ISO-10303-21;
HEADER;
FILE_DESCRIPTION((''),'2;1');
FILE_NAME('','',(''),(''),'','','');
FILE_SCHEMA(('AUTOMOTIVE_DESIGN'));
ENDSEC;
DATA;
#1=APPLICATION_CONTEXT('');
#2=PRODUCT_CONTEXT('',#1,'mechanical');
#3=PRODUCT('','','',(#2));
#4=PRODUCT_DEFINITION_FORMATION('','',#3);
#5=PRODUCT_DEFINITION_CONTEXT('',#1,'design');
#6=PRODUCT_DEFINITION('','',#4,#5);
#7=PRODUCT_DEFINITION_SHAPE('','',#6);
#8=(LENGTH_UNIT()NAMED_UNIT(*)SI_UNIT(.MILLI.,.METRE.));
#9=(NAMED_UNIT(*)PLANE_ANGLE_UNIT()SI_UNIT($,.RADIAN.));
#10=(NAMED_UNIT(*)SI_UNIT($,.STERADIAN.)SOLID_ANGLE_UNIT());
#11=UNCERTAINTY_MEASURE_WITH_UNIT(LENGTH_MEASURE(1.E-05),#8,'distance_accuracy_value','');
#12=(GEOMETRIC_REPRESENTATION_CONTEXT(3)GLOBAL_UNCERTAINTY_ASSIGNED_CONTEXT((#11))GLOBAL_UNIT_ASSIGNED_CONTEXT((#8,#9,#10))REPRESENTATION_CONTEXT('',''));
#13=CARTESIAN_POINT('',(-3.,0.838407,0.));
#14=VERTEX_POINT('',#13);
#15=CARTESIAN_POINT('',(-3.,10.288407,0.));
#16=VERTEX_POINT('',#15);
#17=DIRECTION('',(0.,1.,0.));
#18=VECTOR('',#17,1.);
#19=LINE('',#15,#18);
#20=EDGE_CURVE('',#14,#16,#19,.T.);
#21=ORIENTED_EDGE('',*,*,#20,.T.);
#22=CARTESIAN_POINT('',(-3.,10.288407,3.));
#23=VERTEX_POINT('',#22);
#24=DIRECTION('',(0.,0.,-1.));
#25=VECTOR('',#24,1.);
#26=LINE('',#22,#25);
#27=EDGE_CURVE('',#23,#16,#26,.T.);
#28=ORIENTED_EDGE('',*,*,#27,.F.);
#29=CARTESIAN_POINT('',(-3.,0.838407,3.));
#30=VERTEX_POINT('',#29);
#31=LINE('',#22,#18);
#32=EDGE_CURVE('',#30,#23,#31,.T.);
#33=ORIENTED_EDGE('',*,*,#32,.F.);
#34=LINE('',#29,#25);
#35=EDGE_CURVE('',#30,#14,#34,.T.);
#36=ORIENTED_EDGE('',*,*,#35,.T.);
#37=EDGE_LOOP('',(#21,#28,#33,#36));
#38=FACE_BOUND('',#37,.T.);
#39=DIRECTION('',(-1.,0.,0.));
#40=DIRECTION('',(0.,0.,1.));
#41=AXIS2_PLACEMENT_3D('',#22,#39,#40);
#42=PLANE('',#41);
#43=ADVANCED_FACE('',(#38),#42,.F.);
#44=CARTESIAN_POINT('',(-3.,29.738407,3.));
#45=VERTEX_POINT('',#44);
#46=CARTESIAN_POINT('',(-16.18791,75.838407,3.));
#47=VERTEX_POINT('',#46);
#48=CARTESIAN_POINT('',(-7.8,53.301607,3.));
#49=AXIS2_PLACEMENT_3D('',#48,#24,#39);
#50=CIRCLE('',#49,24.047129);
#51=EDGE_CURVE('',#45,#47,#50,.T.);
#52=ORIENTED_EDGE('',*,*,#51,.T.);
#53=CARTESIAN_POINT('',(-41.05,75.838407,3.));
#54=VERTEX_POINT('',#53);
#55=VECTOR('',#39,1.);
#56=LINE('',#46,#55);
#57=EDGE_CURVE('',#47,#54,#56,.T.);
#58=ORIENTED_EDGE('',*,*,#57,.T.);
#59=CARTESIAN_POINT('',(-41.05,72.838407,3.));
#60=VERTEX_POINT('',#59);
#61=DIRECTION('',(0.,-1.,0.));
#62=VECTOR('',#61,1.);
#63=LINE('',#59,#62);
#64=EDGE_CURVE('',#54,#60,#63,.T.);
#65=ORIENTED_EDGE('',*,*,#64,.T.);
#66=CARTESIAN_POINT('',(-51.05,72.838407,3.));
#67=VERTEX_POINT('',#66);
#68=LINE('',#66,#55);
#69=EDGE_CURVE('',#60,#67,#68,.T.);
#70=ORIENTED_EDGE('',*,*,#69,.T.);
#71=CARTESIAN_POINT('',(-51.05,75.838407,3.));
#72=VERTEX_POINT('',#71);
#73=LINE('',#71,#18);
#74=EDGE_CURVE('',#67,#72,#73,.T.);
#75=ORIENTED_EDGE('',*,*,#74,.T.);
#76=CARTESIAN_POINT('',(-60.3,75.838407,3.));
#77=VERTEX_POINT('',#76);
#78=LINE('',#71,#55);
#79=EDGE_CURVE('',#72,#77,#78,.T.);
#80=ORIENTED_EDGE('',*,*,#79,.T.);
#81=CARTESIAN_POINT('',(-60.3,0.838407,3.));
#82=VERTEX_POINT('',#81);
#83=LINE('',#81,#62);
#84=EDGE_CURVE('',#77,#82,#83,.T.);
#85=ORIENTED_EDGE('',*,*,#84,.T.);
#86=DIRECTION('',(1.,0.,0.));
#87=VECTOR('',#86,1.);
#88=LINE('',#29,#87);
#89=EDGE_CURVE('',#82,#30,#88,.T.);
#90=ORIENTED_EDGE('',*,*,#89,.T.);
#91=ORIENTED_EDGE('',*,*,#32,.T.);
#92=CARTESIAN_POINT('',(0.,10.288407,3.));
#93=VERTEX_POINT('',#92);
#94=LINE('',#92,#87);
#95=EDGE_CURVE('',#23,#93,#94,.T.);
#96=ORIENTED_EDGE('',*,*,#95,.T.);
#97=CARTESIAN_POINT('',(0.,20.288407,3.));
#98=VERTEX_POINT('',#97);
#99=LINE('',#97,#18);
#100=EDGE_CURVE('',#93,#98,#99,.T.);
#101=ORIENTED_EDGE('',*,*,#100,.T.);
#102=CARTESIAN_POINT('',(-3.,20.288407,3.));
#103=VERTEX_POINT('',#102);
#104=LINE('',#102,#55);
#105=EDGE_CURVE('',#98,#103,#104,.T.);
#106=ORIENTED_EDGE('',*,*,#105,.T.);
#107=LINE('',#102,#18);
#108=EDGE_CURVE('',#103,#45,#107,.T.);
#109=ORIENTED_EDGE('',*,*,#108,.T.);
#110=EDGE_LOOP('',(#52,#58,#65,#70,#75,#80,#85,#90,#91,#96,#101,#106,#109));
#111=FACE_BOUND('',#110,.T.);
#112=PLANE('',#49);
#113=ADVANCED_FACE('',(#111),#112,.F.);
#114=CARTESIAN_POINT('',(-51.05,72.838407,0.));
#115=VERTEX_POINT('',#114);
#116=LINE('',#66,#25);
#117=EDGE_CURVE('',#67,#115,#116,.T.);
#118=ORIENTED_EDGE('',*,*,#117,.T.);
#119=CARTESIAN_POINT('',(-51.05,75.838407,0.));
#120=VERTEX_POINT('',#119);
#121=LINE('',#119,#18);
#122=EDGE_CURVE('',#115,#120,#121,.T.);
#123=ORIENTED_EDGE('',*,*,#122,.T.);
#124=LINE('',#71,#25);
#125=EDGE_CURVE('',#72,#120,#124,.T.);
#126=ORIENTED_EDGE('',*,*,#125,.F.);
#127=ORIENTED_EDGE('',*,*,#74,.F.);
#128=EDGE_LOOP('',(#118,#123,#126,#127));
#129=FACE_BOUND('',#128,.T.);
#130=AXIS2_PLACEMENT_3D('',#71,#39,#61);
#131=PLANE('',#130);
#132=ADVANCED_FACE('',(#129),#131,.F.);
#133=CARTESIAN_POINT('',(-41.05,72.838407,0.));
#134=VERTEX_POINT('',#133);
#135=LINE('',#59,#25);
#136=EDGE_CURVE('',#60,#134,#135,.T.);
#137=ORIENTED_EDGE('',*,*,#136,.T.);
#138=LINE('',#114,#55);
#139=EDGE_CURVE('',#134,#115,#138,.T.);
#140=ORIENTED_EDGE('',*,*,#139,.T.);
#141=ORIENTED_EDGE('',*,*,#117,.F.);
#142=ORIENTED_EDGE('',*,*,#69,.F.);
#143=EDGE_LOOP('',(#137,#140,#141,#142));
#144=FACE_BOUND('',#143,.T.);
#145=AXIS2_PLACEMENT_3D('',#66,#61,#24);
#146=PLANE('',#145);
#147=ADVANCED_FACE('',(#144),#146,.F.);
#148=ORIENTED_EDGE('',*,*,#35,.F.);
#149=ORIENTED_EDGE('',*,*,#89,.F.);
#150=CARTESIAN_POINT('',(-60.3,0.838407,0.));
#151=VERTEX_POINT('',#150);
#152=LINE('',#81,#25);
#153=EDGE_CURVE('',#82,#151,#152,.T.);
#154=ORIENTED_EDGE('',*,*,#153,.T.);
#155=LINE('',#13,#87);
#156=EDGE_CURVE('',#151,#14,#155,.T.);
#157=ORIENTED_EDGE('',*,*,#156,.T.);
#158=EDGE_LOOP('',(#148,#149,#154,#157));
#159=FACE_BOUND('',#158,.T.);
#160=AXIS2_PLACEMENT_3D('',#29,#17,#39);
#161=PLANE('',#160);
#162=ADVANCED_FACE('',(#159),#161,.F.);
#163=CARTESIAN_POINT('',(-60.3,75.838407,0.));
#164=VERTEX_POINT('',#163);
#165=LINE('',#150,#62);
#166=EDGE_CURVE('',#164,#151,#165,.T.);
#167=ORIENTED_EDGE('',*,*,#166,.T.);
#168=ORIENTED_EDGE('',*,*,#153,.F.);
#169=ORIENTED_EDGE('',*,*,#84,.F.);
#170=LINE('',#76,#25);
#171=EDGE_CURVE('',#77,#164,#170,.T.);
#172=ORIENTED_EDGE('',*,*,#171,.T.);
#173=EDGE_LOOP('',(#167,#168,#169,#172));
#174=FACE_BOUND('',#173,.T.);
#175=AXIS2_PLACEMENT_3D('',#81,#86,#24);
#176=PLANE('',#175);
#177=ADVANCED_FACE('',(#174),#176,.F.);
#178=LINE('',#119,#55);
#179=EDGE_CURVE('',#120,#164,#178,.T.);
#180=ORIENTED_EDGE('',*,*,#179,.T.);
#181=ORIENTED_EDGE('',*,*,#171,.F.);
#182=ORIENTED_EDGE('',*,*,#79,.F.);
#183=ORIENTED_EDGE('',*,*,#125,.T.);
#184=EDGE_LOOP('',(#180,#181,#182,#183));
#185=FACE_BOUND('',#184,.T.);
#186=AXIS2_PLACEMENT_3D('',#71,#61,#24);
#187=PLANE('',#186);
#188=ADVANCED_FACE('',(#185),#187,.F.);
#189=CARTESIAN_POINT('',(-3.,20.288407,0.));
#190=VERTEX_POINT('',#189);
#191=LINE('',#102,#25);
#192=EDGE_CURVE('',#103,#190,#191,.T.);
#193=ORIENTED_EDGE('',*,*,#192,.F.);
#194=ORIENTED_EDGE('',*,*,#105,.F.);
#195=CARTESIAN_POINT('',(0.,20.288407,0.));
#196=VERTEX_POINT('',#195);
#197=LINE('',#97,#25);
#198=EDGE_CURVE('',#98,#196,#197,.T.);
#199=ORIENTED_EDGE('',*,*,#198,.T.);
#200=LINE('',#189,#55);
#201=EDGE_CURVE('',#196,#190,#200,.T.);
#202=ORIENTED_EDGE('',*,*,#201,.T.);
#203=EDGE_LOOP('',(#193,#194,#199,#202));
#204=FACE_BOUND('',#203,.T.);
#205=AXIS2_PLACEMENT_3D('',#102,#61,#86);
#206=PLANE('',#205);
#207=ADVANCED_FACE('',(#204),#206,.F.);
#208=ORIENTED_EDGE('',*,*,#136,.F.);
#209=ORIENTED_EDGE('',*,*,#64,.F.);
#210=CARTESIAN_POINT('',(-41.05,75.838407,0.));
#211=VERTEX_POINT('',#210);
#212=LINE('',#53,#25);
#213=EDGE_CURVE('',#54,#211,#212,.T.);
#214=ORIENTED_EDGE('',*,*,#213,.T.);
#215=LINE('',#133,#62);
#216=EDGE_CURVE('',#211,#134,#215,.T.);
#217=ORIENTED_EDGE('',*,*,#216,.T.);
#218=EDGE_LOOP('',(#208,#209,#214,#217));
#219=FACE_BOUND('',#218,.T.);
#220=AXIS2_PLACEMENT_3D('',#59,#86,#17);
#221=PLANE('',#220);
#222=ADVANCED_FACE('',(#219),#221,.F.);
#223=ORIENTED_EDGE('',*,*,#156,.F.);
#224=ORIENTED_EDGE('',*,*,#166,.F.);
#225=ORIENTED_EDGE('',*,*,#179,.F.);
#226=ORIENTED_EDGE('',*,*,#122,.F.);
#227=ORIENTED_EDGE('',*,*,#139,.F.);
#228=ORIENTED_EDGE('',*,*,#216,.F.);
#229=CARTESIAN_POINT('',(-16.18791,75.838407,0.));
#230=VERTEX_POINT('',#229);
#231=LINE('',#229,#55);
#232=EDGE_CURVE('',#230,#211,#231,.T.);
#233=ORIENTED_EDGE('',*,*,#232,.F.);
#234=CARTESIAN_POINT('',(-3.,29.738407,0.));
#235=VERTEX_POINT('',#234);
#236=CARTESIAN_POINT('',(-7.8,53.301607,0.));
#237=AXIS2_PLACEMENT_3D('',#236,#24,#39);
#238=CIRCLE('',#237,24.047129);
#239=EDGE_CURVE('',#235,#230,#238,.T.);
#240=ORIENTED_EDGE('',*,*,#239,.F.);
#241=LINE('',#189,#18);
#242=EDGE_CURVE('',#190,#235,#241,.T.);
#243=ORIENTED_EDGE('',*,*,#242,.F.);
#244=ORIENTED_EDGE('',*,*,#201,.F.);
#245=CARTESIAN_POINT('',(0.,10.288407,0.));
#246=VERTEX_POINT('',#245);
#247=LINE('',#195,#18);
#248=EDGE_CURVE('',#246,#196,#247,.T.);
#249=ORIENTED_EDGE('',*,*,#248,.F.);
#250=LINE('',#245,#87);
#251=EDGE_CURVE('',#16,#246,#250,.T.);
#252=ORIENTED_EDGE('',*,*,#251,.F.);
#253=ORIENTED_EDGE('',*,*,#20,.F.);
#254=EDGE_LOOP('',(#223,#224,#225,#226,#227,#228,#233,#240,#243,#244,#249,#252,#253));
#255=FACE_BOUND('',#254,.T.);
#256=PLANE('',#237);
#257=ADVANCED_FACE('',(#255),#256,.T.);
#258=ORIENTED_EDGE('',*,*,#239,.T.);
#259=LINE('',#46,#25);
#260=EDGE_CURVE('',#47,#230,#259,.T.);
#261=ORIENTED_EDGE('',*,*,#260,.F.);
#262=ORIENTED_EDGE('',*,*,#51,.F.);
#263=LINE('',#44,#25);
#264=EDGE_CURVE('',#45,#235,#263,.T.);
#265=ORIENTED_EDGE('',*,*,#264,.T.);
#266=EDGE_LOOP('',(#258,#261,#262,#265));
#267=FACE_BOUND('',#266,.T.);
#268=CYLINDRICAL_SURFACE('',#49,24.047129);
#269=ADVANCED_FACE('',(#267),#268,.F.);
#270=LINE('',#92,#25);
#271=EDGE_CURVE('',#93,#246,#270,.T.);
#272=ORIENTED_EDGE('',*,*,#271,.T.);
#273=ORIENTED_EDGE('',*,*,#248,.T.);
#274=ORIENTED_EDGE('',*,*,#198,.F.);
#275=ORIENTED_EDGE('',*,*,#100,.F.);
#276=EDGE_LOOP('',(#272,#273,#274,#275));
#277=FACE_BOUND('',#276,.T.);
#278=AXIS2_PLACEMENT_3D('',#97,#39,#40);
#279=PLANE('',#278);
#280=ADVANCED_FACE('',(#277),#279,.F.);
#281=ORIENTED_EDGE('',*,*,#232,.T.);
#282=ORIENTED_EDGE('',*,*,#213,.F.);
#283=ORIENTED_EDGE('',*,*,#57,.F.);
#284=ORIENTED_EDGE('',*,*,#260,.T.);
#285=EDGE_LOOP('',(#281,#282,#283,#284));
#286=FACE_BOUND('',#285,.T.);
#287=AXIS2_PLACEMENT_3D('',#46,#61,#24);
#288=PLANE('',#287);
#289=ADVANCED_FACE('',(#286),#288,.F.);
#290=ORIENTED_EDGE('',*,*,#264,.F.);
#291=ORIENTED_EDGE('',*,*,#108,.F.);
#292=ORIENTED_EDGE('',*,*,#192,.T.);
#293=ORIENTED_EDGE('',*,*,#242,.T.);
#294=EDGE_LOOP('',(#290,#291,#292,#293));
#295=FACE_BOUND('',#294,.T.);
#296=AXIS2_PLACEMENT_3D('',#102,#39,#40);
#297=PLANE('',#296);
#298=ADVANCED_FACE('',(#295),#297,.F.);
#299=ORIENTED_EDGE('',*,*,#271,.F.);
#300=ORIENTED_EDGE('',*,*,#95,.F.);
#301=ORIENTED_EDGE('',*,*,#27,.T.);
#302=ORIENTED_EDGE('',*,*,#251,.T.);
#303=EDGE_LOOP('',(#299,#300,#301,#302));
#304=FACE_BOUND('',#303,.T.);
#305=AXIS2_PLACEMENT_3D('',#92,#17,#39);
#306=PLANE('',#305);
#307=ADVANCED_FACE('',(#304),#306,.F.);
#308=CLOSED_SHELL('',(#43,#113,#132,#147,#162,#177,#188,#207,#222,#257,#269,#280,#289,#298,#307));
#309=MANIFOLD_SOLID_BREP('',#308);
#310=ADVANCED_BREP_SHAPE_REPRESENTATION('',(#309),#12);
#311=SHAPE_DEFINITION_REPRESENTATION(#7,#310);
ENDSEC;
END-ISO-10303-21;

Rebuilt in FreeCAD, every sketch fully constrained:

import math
import FreeCAD as App
import Part
import Sketcher
from FreeCAD import Vector
Q = App.Units.Quantity

doc = App.newDocument("Part")
body = doc.addObject("PartDesign::Body", "Body")

sketch1 = body.newObject("Sketcher::SketchObject", "Sketch")
sketch1.AttachmentSupport = (doc.getObject("XY_Plane"), [""])
sketch1.MapMode = "FlatFace"
sketch1.addGeometry([
    Part.LineSegment(Vector(-60.3, 0.8, 0), Vector(-3, 0.8, 0)),
    Part.LineSegment(Vector(-3, 0.8, 0), Vector(-3, 10.3, 0)),
    Part.LineSegment(Vector(-3, 10.3, 0), Vector(0, 10.3, 0)),
    Part.LineSegment(Vector(0, 10.3, 0), Vector(0, 20.3, 0)),
    Part.LineSegment(Vector(0, 20.3, 0), Vector(-3, 20.3, 0)),
    Part.LineSegment(Vector(-3, 20.3, 0), Vector(-3, 29.7, 0)),
    Part.ArcOfCircle(Part.Circle(Vector(-7.8, 53.3, 0), Vector(0, 0, 1), 24), math.radians(110), math.radians(282)),
    Part.LineSegment(Vector(-16.2, 75.8, 0), Vector(-41, 75.8, 0)),
    Part.LineSegment(Vector(-41, 75.8, 0), Vector(-41, 72.8, 0)),
    Part.LineSegment(Vector(-41, 72.8, 0), Vector(-51, 72.8, 0)),
    Part.LineSegment(Vector(-51, 72.8, 0), Vector(-51, 75.8, 0)),
    Part.LineSegment(Vector(-51, 75.8, 0), Vector(-60.3, 75.8, 0)),
    Part.LineSegment(Vector(-60.3, 75.8, 0), Vector(-60.3, 0.8, 0)),
], False)
sketch1.addConstraint([
    Sketcher.Constraint("Coincident", 0, 2, 1, 1),
    Sketcher.Constraint("Coincident", 1, 2, 2, 1),
    Sketcher.Constraint("Coincident", 2, 2, 3, 1),
    Sketcher.Constraint("Coincident", 3, 2, 4, 1),
    Sketcher.Constraint("Coincident", 4, 2, 5, 1),
    Sketcher.Constraint("Coincident", 5, 2, 6, 2),
    Sketcher.Constraint("Coincident", 6, 1, 7, 1),
    Sketcher.Constraint("Coincident", 7, 2, 8, 1),
    Sketcher.Constraint("Coincident", 8, 2, 9, 1),
    Sketcher.Constraint("Coincident", 9, 2, 10, 1),
    Sketcher.Constraint("Coincident", 10, 2, 11, 1),
    Sketcher.Constraint("Coincident", 11, 2, 12, 1),
    Sketcher.Constraint("Coincident", 12, 2, 0, 1),
    Sketcher.Constraint("Horizontal", 0),
    Sketcher.Constraint("Vertical", 1),
    Sketcher.Constraint("Horizontal", 2),
    Sketcher.Constraint("Vertical", 3),
    Sketcher.Constraint("Horizontal", 4),
    Sketcher.Constraint("Vertical", 5),
    Sketcher.Constraint("Horizontal", 7),
    Sketcher.Constraint("Vertical", 8),
    Sketcher.Constraint("Horizontal", 9),
    Sketcher.Constraint("Vertical", 10),
    Sketcher.Constraint("Horizontal", 11),
    Sketcher.Constraint("Vertical", 12),
    Sketcher.Constraint("PointOnObject", 2, 2, -2),
    Sketcher.Constraint("Horizontal", 7, 2, 10, 2),
    Sketcher.Constraint("Vertical", 1, 2, 4, 2),
    Sketcher.Constraint("Equal", 9, 3),
    Sketcher.Constraint("Equal", 1, 5),
    Sketcher.Constraint("Equal", 4, 8),
    Sketcher.Constraint("DistanceX", 2, 1, 2, 2, Q("3 mm")),
    Sketcher.Constraint("DistanceX", 9, 2, 9, 1, Q("10 mm")),
    Sketcher.Constraint("DistanceY", 12, 2, 12, 1, Q("75 mm")),
    Sketcher.Constraint("DistanceX", 0, 1, 0, 2, Q("57.3 mm")),
    Sketcher.Constraint("DistanceX", 11, 2, 11, 1, Q("9.25 mm")),
    Sketcher.Constraint("DistanceY", 1, 1, 1, 2, Q("9.45 mm")),
    Sketcher.Constraint("DistanceX", 6, 3, -1, 1, Q("7.8 mm")),
    Sketcher.Constraint("Radius", 6, Q("24.047129 mm")),
    Sketcher.Constraint("DistanceY", -1, 1, 6, 3, Q("53.301607 mm")),
])
pad1 = body.newObject("PartDesign::Pad", "Pad")
pad1.Profile = sketch1
pad1.Length = 3

doc.recompute()
